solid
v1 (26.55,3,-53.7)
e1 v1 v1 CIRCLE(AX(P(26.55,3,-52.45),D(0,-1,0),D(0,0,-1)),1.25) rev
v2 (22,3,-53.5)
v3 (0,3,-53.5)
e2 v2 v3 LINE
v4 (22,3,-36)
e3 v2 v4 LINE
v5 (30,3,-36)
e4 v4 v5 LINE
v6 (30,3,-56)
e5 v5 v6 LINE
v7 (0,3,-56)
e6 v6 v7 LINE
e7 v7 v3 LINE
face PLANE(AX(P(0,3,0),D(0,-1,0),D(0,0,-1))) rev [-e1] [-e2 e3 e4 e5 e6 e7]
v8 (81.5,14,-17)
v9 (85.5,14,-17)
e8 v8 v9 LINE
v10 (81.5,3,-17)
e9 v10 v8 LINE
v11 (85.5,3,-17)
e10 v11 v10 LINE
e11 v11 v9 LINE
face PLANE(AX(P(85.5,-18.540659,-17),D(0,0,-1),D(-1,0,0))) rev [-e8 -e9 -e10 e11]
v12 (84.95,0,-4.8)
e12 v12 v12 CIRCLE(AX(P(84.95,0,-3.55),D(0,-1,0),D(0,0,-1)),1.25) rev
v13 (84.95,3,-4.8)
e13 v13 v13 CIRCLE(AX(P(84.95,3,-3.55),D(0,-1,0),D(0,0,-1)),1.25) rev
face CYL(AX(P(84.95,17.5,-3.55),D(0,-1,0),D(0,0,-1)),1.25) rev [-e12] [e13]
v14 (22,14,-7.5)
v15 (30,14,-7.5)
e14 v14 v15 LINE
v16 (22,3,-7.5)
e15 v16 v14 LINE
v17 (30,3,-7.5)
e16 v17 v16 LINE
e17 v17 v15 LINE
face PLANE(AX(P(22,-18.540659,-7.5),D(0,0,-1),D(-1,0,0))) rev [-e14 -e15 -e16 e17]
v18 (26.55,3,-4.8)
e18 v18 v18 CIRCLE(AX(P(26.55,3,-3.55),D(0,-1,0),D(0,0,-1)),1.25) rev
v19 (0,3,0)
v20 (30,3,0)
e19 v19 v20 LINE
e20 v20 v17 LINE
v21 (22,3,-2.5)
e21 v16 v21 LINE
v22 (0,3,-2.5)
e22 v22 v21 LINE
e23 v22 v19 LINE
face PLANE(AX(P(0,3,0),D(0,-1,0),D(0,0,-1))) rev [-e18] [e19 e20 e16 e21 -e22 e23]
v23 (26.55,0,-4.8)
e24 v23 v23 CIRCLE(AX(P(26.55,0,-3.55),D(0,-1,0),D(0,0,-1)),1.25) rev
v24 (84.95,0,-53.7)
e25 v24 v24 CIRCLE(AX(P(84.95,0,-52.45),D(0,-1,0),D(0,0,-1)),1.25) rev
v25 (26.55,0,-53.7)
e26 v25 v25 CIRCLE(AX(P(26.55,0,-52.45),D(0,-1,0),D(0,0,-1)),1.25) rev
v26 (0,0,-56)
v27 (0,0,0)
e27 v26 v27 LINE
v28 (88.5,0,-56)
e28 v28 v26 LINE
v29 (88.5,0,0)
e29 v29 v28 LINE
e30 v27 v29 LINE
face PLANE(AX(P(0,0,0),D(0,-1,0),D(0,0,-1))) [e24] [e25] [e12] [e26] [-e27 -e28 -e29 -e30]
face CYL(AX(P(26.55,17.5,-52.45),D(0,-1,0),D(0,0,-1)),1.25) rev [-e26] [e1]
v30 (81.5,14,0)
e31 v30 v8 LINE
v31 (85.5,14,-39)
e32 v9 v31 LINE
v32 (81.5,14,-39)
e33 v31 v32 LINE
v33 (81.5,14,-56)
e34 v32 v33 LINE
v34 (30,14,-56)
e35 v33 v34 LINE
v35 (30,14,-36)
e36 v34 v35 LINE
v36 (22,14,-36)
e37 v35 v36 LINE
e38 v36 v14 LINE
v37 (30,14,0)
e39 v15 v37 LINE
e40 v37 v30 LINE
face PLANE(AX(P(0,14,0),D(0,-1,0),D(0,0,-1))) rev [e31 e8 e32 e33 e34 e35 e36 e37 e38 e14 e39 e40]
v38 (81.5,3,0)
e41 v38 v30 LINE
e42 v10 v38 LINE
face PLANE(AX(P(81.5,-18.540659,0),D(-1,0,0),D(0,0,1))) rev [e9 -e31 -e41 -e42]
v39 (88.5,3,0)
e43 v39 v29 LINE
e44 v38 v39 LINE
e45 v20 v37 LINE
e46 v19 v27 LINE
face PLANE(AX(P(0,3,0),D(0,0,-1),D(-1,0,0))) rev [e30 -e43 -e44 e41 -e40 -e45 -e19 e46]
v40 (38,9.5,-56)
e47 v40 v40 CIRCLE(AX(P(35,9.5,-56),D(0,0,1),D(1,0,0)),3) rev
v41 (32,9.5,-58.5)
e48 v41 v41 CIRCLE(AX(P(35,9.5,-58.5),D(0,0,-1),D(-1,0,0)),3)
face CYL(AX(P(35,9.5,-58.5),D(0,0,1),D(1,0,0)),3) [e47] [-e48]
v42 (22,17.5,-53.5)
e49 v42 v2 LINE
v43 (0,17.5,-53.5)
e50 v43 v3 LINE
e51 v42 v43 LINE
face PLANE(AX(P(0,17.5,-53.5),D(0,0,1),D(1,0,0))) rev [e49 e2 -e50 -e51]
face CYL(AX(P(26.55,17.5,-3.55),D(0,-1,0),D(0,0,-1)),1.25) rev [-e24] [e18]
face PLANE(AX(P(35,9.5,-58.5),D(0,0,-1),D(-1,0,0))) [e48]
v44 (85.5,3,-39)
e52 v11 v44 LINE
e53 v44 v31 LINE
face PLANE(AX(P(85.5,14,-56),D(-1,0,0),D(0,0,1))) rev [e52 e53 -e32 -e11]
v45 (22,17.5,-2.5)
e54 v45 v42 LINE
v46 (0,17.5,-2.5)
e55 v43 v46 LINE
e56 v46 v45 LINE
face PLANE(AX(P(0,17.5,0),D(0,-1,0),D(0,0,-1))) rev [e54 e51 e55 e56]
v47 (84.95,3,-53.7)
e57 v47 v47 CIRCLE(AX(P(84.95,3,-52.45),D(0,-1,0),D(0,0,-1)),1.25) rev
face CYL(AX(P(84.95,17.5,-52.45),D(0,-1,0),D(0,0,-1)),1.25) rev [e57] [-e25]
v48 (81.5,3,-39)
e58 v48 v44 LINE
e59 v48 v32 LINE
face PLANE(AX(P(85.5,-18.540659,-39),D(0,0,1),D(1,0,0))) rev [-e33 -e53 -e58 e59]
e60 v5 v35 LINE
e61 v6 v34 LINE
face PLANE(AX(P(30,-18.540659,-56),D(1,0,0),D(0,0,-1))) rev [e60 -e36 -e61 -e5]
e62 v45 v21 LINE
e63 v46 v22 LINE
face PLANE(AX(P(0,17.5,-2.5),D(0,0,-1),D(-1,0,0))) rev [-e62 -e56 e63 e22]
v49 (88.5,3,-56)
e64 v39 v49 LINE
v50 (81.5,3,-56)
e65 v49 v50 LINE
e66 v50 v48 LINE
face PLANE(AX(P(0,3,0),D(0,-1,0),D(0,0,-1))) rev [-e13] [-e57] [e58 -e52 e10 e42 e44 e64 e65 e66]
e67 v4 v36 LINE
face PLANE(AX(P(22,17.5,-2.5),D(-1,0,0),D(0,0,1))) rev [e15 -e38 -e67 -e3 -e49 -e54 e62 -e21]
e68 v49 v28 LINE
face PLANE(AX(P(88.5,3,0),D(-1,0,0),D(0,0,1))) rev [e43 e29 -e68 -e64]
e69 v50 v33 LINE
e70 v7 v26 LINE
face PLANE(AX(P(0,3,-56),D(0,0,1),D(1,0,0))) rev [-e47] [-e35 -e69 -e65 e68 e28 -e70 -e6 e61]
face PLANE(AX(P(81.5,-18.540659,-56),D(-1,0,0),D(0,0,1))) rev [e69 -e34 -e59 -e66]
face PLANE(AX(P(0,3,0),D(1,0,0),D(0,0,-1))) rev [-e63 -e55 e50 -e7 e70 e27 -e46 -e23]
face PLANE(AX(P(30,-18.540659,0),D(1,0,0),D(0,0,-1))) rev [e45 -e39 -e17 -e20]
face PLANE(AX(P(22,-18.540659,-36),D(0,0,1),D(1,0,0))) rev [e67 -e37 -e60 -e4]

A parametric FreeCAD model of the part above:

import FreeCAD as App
import Part
import Sketcher

V = App.Vector
Q = App.Units.Quantity


def add_polygon(sketch, points):
    """Adds a closed chain of lines whose ends are joined by coincident constraints."""
    first, n = sketch.GeometryCount, len(points)
    for a, b in zip(points, points[1:] + points[:1]):
        sketch.addGeometry(Part.LineSegment(App.Vector(*a, 0), App.Vector(*b, 0)), False)
    for i in range(n):
        sketch.addConstraint(Sketcher.Constraint("Coincident", first + i, 2, first + (i + 1) % n, 1))

doc = App.newDocument("Part")
body = doc.addObject("PartDesign::Body", "Body")

# Sketch on XZ plane
sketch1 = body.newObject("Sketcher::SketchObject", "Sketch")
sketch1.AttachmentSupport = (doc.getObject("XZ_Plane"), [""])
sketch1.MapMode = "FlatFace"
add_polygon(sketch1, [(0, -56), (0, 0), (88, 0), (88, -56)])  # lines 0-3
sketch1.addConstraint([
    Sketcher.Constraint("Vertical", 0),
    Sketcher.Constraint("Horizontal", 1),
    Sketcher.Constraint("Vertical", 2),
    Sketcher.Constraint("Horizontal", 3),
    Sketcher.Constraint("Coincident", 0, 2, -1, 1),
    Sketcher.Constraint("DistanceY", 0, 1, 0, 2, Q("56 mm")),
    Sketcher.Constraint("DistanceX", 1, 1, 1, 2, Q("88.5 mm")),
])
pad1 = body.newObject("PartDesign::Pad", "Pad")
pad1.Profile = sketch1
pad1.Length = 3
pad1.Reversed = True

# Sketch on XZ plane
sketch2 = body.newObject("Sketcher::SketchObject", "Sketch001")
sketch2.AttachmentSupport = (doc.getObject("XZ_Plane"), [""])
sketch2.MapMode = "FlatFace"
sketch2.AttachmentOffset = App.Placement(V(0, 0, -3), App.Rotation())
add_polygon(sketch2, [(22, -56), (22, 0), (86, 0), (86, -56)])  # lines 0-3
sketch2.addConstraint([
    Sketcher.Constraint("Vertical", 0),
    Sketcher.Constraint("Horizontal", 1),
    Sketcher.Constraint("Vertical", 2),
    Sketcher.Constraint("Horizontal", 3),
    Sketcher.Constraint("PointOnObject", 0, 2, -1),
    Sketcher.Constraint("DistanceY", 0, 1, 0, 2, Q("56 mm")),
    Sketcher.Constraint("DistanceX", 1, 1, 1, 2, Q("63.5 mm")),
    Sketcher.Constraint("DistanceX", -1, 1, 0, 2, Q("22 mm")),
])
pad2 = body.newObject("PartDesign::Pad", "Pad001")
pad2.Profile = sketch2
pad2.Length = 11
pad2.Reversed = True

# Sketch on XZ plane
sketch3 = body.newObject("Sketcher::SketchObject", "Sketch002")
sketch3.AttachmentSupport = (doc.getObject("XZ_Plane"), [""])
sketch3.MapMode = "FlatFace"
sketch3.AttachmentOffset = App.Placement(V(0, 0, -3), App.Rotation())
add_polygon(sketch3, [(0, -54), (0, -2), (22, -2), (22, -54)])  # lines 0-3
sketch3.addConstraint([
    Sketcher.Constraint("Vertical", 0),
    Sketcher.Constraint("Horizontal", 1),
    Sketcher.Constraint("Vertical", 2),
    Sketcher.Constraint("Horizontal", 3),
    Sketcher.Constraint("PointOnObject", 0, 2, -2),
    Sketcher.Constraint("DistanceX", 1, 1, 1, 2, Q("22 mm")),
    Sketcher.Constraint("DistanceY", 0, 1, 0, 2, Q("51 mm")),
    Sketcher.Constraint("DistanceY", 0, 2, -1, 1, Q("2.5 mm")),
])
pad3 = body.newObject("PartDesign::Pad", "Pad002")
pad3.Profile = sketch3
pad3.Length = 14.5
pad3.Reversed = True

# Sketch on XZ plane
sketch4 = body.newObject("Sketcher::SketchObject", "Sketch003")
sketch4.AttachmentSupport = (doc.getObject("XZ_Plane"), [""])
sketch4.MapMode = "FlatFace"
sketch4.AttachmentOffset = App.Placement(V(0, 0, -14), App.Rotation())
add_polygon(sketch4, [(81.5, -17), (81.5, 0), (85.5, 0), (85.5, -17)])  # lines 0-3
add_polygon(sketch4, [(81.5, -56), (81.5, -39), (85.5, -39), (85.5, -56)])  # lines 4-7
add_polygon(sketch4, [(22, -7.5), (22, 0), (30, 0), (30, -7.5)])  # lines 8-11
add_polygon(sketch4, [(22, -56), (22, -36), (30, -36), (30, -56)])  # lines 12-15
sketch4.addConstraint([
    Sketcher.Constraint("Vertical", 0),
    Sketcher.Constraint("Horizontal", 1),
    Sketcher.Constraint("Vertical", 2),
    Sketcher.Constraint("Horizontal", 3),
    Sketcher.Constraint("Vertical", 4),
    Sketcher.Constraint("Horizontal", 5),
    Sketcher.Constraint("Vertical", 6),
    Sketcher.Constraint("Horizontal", 7),
    Sketcher.Constraint("Vertical", 8),
    Sketcher.Constraint("Horizontal", 9),
    Sketcher.Constraint("Vertical", 10),
    Sketcher.Constraint("Horizontal", 11),
    Sketcher.Constraint("Vertical", 12),
    Sketcher.Constraint("Horizontal", 13),
    Sketcher.Constraint("Vertical", 14),
    Sketcher.Constraint("Horizontal", 15),
    Sketcher.Constraint("PointOnObject", 0, 2, -1),
    Sketcher.Constraint("PointOnObject", 8, 2, -1),
    Sketcher.Constraint("Horizontal", 7, 2, 14, 2),
    Sketcher.Constraint("Vertical", 3, 2, 4, 2),
    Sketcher.Constraint("Vertical", 2, 2, 5, 2),
    Sketcher.Constraint("Vertical", 11, 2, 12, 2),
    Sketcher.Constraint("Vertical", 10, 2, 13, 2),
    Sketcher.Constraint("Equal", 2, 4),
    Sketcher.Constraint("DistanceX", 1, 1, 1, 2, Q("4 mm")),
    Sketcher.Constraint("DistanceX", 9, 1, 9, 2, Q("8 mm")),
    Sketcher.Constraint("DistanceY", 0, 1, 0, 2, Q("17 mm")),
    Sketcher.Constraint("DistanceY", 12, 1, 12, 2, Q("20 mm")),
    Sketcher.Constraint("DistanceY", 8, 1, 8, 2, Q("7.5 mm")),
    Sketcher.Constraint("DistanceY", 4, 2, -1, 1, Q("39 mm")),
    Sketcher.Constraint("DistanceX", -1, 1, 8, 2, Q("22 mm")),
    Sketcher.Constraint("DistanceX", -1, 1, 0, 2, Q("81.5 mm")),
])
pocket1 = body.newObject("PartDesign::Pocket", "Pocket")
pocket1.Profile = sketch4
pocket1.Type = "TwoLengths"
pocket1.Length = 4.5
pocket1.Length2 = 11

# Sketch on XZ plane
sketch5 = body.newObject("Sketcher::SketchObject", "Sketch004")
sketch5.AttachmentSupport = (doc.getObject("XZ_Plane"), [""])
sketch5.MapMode = "FlatFace"
sketch5.addGeometry([
    Part.Circle(V(85, -52.5, 0), V(0, 0, 1), 1.2),
    Part.Circle(V(85, -3.5, 0), V(0, 0, 1), 1.2),
    Part.Circle(V(26.6, -3.5, 0), V(0, 0, 1), 1.2),
    Part.Circle(V(26.6, -52.5, 0), V(0, 0, 1), 1.2),
], False)
sketch5.addConstraint([
    Sketcher.Constraint("Equal", 0, 1),
    Sketcher.Constraint("Equal", 1, 2),
    Sketcher.Constraint("Equal", 2, 3),
    Sketcher.Constraint("Horizontal", 1, 3, 2, 3),
    Sketcher.Constraint("Horizontal", 0, 3, 3, 3),
    Sketcher.Constraint("Vertical", 0, 3, 1, 3),
    Sketcher.Constraint("Vertical", 2, 3, 3, 3),
    Sketcher.Constraint("Diameter", 0, Q("2.5 mm")),
    Sketcher.Constraint("DistanceY", 0, 3, 1, 3, Q("48.9 mm")),
    Sketcher.Constraint("DistanceX", 2, 3, 1, 3, Q("58.4 mm")),
    Sketcher.Constraint("DistanceX", -1, 1, 0, 3, Q("84.95 mm")),
    Sketcher.Constraint("DistanceY", 0, 3, -1, 1, Q("52.45 mm")),
])
pocket2 = body.newObject("PartDesign::Pocket", "Pocket001")
pocket2.Profile = sketch5
pocket2.Type = "ThroughAll"
pocket2.Midplane = True

# Sketch on XY plane
sketch6 = body.newObject("Sketcher::SketchObject", "Sketch005")
sketch6.AttachmentSupport = (doc.getObject("XY_Plane"), [""])
sketch6.MapMode = "FlatFace"
sketch6.AttachmentOffset = App.Placement(V(0, 0, -56), App.Rotation())
sketch6.addGeometry(Part.Circle(V(35, 9.5, 0), V(0, 0, 1), 3), False)
sketch6.addConstraint([
    Sketcher.Constraint("Diameter", 0, Q("6 mm")),
    Sketcher.Constraint("DistanceX", -1, 1, 0, 3, Q("35 mm")),
    Sketcher.Constraint("DistanceY", -1, 1, 0, 3, Q("9.5 mm")),
])
pad4 = body.newObject("PartDesign::Pad", "Pad003")
pad4.Profile = sketch6
pad4.Length = 2.5
pad4.Reversed = True

doc.recompute()
